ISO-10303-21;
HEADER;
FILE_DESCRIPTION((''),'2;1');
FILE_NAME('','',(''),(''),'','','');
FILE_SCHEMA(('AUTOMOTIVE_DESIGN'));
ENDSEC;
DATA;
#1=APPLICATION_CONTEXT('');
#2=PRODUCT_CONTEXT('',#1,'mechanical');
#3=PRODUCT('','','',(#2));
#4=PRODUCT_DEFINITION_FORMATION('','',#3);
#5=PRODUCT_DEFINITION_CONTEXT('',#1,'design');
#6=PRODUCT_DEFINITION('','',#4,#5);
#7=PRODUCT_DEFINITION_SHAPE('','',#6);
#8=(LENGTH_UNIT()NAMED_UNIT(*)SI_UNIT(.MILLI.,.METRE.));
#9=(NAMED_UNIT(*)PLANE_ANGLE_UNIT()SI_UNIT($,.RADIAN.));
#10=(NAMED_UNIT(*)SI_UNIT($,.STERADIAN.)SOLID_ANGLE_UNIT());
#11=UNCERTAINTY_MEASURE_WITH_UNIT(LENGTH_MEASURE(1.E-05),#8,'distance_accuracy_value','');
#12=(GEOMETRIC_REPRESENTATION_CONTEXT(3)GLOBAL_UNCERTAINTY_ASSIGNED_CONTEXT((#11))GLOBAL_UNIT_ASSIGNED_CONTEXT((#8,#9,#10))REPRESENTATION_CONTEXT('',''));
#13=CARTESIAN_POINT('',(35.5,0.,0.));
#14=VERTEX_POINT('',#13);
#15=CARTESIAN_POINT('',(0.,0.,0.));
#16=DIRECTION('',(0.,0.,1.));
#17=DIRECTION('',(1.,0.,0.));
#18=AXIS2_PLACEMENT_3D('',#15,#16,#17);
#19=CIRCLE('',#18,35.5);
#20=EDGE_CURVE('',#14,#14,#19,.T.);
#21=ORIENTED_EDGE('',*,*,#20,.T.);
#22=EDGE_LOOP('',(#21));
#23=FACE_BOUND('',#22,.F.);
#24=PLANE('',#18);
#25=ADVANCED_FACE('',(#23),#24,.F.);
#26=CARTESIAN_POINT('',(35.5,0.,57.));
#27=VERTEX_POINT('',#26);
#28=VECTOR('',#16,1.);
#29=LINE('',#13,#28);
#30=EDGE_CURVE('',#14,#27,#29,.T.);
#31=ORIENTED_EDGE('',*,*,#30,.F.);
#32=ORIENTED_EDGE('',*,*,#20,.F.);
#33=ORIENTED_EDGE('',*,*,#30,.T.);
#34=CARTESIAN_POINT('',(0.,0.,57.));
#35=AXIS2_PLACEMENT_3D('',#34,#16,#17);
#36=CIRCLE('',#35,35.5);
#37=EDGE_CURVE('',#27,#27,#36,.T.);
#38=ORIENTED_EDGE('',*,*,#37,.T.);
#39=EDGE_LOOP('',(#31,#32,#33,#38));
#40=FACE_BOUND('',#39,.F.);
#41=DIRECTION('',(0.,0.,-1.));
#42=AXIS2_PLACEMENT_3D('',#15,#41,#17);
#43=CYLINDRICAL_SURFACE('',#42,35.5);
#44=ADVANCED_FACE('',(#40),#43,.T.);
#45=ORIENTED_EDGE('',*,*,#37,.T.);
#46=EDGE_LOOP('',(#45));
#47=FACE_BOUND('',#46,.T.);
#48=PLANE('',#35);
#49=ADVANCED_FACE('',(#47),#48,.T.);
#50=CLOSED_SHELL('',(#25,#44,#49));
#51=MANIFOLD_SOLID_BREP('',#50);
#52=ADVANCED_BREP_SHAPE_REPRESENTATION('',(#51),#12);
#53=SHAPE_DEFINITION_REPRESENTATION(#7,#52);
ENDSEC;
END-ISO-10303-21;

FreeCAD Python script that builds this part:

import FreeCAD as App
import Part
import Sketcher

V = App.Vector

doc = App.newDocument("Part")
body = doc.addObject("PartDesign::Body", "Body")

sketch1 = body.newObject("Sketcher::SketchObject", "Sketch")
sketch1.AttachmentSupport = (doc.getObject("XY_Plane"), [""])
sketch1.MapMode = "FlatFace"
sketch1.addGeometry(Part.Circle(V(0, 0, 0), V(0, 0, 1), 36), False)
sketch1.addConstraint(Sketcher.Constraint("Coincident", 0, 3, -1, 1))
sketch1.addConstraint(Sketcher.Constraint("Diameter", 0, 71.0))
pad1 = body.newObject("PartDesign::Pad", "Pad")
pad1.Profile = sketch1
pad1.Length = 57

doc.recompute()
